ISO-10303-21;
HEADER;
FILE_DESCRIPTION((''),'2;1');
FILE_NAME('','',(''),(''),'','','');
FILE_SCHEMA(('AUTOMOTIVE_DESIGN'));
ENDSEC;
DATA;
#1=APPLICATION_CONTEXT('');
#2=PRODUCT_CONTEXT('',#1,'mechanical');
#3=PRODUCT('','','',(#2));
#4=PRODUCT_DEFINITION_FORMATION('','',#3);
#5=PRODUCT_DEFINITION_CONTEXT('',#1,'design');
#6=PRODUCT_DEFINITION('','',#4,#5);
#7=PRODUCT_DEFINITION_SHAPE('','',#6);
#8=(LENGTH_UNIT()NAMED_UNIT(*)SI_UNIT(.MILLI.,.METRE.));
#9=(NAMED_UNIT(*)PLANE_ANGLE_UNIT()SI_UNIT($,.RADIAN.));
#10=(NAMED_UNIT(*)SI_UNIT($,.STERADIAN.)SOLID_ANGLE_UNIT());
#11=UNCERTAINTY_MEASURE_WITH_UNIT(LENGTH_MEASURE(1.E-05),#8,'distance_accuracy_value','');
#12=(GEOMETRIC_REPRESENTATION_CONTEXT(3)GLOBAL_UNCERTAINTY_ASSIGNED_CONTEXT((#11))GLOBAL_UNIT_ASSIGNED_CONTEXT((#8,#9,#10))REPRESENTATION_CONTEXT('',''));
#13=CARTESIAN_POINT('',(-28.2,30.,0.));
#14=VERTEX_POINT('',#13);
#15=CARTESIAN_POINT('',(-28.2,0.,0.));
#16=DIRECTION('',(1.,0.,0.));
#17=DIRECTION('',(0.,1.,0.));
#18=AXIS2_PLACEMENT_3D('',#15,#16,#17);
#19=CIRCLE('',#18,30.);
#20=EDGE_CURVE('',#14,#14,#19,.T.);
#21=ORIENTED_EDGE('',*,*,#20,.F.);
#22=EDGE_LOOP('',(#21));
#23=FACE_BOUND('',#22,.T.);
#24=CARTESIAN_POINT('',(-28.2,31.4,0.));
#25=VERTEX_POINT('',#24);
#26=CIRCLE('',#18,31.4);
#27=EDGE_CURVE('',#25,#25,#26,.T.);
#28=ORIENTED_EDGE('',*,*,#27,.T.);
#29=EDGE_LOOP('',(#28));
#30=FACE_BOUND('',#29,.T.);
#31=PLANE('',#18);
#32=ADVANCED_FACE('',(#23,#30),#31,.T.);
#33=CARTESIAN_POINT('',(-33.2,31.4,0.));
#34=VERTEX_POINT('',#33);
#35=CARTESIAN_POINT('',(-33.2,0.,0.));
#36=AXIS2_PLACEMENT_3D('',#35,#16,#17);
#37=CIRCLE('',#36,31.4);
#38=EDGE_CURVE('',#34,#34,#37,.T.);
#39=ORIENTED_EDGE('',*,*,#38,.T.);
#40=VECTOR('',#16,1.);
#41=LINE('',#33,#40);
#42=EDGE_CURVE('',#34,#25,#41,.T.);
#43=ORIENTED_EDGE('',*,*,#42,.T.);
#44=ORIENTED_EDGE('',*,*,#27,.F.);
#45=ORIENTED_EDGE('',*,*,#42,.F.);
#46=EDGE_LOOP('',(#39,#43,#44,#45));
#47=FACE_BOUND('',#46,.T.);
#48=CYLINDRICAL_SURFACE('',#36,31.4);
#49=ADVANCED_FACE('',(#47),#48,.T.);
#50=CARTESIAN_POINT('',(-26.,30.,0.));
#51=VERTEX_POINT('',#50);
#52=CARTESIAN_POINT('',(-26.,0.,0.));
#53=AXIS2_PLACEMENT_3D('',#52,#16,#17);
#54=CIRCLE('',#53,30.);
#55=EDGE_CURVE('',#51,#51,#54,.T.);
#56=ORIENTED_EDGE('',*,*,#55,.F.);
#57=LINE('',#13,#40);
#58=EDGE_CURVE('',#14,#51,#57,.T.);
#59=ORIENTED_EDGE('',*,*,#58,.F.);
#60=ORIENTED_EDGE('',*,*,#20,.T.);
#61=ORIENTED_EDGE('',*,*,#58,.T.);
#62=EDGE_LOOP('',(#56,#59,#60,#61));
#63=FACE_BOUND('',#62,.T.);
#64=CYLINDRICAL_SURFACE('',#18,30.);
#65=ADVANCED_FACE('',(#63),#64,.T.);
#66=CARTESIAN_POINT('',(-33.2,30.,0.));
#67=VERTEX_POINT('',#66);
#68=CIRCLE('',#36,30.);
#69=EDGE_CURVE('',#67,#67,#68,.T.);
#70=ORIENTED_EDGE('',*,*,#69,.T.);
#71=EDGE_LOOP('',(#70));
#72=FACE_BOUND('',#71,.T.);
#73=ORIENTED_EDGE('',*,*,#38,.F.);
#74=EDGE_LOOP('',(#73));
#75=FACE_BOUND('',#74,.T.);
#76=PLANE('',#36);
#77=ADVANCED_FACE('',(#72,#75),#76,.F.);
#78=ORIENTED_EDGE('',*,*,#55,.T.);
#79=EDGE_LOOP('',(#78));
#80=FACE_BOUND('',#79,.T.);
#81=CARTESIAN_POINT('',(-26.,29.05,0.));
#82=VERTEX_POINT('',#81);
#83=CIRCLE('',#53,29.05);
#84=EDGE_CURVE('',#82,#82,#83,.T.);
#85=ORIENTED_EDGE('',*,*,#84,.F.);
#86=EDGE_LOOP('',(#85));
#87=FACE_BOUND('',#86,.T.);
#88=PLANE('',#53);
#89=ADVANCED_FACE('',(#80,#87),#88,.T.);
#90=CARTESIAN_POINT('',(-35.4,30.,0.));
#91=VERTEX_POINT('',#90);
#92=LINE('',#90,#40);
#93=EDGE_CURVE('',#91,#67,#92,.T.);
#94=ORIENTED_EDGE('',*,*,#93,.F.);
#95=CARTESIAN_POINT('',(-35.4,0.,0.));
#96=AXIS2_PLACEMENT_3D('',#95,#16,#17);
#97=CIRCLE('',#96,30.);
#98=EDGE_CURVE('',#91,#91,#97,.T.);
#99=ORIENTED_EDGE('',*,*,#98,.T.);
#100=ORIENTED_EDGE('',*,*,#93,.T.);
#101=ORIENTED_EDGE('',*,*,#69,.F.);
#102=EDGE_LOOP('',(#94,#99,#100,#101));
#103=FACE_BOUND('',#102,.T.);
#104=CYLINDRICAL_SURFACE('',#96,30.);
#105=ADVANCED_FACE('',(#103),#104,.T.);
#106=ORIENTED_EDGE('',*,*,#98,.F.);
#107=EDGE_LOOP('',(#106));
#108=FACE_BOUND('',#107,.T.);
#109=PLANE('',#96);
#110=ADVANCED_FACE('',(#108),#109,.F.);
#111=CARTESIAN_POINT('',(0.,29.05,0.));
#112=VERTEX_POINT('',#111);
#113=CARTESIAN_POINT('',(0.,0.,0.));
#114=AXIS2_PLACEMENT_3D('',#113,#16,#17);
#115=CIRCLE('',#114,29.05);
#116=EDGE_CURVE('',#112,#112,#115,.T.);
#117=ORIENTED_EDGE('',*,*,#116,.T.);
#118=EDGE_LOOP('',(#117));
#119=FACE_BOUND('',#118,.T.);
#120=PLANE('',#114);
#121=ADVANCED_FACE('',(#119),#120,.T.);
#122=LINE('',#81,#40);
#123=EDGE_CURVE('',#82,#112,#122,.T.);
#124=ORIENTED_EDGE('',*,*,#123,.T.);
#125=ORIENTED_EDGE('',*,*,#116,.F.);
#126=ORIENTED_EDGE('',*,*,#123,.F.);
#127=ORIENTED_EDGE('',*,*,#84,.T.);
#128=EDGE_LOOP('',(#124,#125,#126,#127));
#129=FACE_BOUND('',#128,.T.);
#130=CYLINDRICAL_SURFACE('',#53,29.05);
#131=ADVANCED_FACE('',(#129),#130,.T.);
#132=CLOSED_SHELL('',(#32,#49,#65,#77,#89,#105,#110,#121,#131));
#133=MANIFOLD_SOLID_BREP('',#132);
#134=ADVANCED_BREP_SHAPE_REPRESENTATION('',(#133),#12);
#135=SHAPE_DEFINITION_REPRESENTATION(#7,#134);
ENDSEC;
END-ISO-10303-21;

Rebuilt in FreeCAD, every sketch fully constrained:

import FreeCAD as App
import Part
import Sketcher
Q = App.Units.Quantity


def add_polygon(sketch, points):
    """Adds a closed chain of lines whose ends are joined by coincident constraints."""
    first, n = sketch.GeometryCount, len(points)
    for a, b in zip(points, points[1:] + points[:1]):
        sketch.addGeometry(Part.LineSegment(App.Vector(*a, 0), App.Vector(*b, 0)), False)
    for i in range(n):
        sketch.addConstraint(Sketcher.Constraint("Coincident", first + i, 2, first + (i + 1) % n, 1))

doc = App.newDocument("Part")
params = doc.addObject("Spreadsheet::Sheet", "Params")
for row, (alias, value) in enumerate([
    ("sketch1_width", "5 mm"),
    ("sketch1_height", "30 mm"),
    ("sketch1_width2", "35.4 mm"),
    ("sketch1_width3", "2.2 mm"),
    ("sketch1_height2", "29.05 mm"),
    ("revolution_angle", "360 deg"),
], start=1):
    params.set(f"A{row}", alias)
    params.set(f"B{row}", "=" + value)
    params.setAlias(f"B{row}", alias)

body = doc.addObject("PartDesign::Body", "Body")

sketch1 = body.newObject("Sketcher::SketchObject", "Sketch")
sketch1.AttachmentSupport = (doc.getObject("XY_Plane"), [""])
sketch1.MapMode = "FlatFace"
add_polygon(sketch1, [(-35.4, 30), (-35.4, 0), (0, 0), (0, 29.05), (-26, 29.05), (-26, 30), (-28.2, 30), (-28.2, 31.4), (-33.2, 31.4), (-33.2, 30)])
sketch1.addConstraint(Sketcher.Constraint("Vertical", 0))
sketch1.addConstraint(Sketcher.Constraint("Horizontal", 1))
sketch1.addConstraint(Sketcher.Constraint("Vertical", 2))
sketch1.addConstraint(Sketcher.Constraint("Horizontal", 3))
sketch1.addConstraint(Sketcher.Constraint("Vertical", 4))
sketch1.addConstraint(Sketcher.Constraint("Horizontal", 5))
sketch1.addConstraint(Sketcher.Constraint("Vertical", 6))
sketch1.addConstraint(Sketcher.Constraint("Horizontal", 7))
sketch1.addConstraint(Sketcher.Constraint("Vertical", 8))
sketch1.addConstraint(Sketcher.Constraint("Horizontal", 9))
sketch1.addConstraint(Sketcher.Constraint("Coincident", 1, 2, -1, 1))
sketch1.addConstraint(Sketcher.Constraint("Horizontal", 5, 2, 8, 2))
sketch1.addConstraint(Sketcher.Constraint("Equal", 5, 9))
sketch1.addConstraint(Sketcher.Constraint("DistanceX", 7, 2, 7, 1, Q("5 mm")))
sketch1.addConstraint(Sketcher.Constraint("DistanceY", 0, 2, 0, 1, Q("30 mm")))
sketch1.addConstraint(Sketcher.Constraint("DistanceX", 1, 1, 1, 2, Q("35.4 mm")))
sketch1.addConstraint(Sketcher.Constraint("DistanceX", 5, 2, 5, 1, Q("2.2 mm")))
sketch1.addConstraint(Sketcher.Constraint("DistanceY", 2, 1, 2, 2, Q("29.05 mm")))
sketch1.addConstraint(Sketcher.Constraint("DistanceY", -1, 1, 6, 2, Q("31.4 mm")))
sketch1.setExpression("Constraints[23]", "Params.sketch1_width")
sketch1.setExpression("Constraints[24]", "Params.sketch1_height")
sketch1.setExpression("Constraints[25]", "Params.sketch1_width2")
sketch1.setExpression("Constraints[26]", "Params.sketch1_width3")
sketch1.setExpression("Constraints[27]", "Params.sketch1_height2")
revolution = body.newObject("PartDesign::Revolution", "Revolution")
revolution.Profile = sketch1
revolution.ReferenceAxis = (sketch1, ["H_Axis"])
revolution.setExpression("Angle", "Params.revolution_angle")

doc.recompute()
